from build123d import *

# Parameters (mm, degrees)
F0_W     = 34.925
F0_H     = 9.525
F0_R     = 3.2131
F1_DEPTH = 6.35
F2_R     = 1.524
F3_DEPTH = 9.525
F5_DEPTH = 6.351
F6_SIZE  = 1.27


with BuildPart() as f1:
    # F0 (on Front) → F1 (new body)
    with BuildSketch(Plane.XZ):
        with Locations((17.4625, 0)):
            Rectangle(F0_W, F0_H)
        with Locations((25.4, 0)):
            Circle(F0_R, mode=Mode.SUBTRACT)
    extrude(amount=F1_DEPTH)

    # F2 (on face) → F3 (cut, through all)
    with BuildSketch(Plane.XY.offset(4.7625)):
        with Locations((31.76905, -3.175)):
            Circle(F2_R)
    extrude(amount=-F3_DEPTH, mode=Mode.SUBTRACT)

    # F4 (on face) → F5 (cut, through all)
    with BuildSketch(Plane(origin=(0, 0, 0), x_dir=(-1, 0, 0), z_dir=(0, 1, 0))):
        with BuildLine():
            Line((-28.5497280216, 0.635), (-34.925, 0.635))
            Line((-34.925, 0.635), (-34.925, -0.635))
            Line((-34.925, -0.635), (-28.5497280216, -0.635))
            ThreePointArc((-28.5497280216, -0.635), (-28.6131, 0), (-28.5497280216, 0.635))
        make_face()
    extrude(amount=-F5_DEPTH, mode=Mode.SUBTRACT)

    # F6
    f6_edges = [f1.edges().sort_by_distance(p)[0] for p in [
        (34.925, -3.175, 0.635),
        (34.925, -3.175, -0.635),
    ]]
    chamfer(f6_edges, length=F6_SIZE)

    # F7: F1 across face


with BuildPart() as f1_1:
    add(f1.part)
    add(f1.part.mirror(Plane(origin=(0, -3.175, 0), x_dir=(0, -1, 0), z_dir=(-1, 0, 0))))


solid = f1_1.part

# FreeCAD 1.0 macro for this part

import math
import FreeCAD as App
import Part
import Sketcher
Q = App.Units.Quantity


def edges_at(feature, points):
    """Names of the edges that pass closest to the given points."""
    edges = feature.Shape.Edges
    near = lambda p: min(range(len(edges)), key=lambda i: edges[i].distToShape(Part.Vertex(*p))[0])
    return sorted({f"Edge{near(p) + 1}" for p in points})


def add_polygon(sketch, points):
    """Adds a closed chain of lines whose ends are joined by coincident constraints."""
    first, n = sketch.GeometryCount, len(points)
    for a, b in zip(points, points[1:] + points[:1]):
        sketch.addGeometry(Part.LineSegment(App.Vector(*a, 0), App.Vector(*b, 0)), False)
    for i in range(n):
        sketch.addConstraint(Sketcher.Constraint("Coincident", first + i, 2, first + (i + 1) % n, 1))

doc = App.newDocument("Part")
params = doc.addObject("Spreadsheet::Sheet", "Params")
for row, (alias, value) in enumerate([
    ("sketch1_diameter", "0.253 in"),
    ("sketch1_width", "1.375 in"),
    ("sketch1_height", "0.375 in"),
    ("pad1_length", "0.25 in"),
    ("sketch2_diameter", "0.12 in"),
    ("sketch3_height", "0.05 in"),
    ("chamfer_size", "0.05 in"),
], start=1):
    params.set(f"A{row}", alias)
    params.set(f"B{row}", "=" + value)
    params.setAlias(f"B{row}", alias)

body = doc.addObject("PartDesign::Body", "Body")

sketch1 = body.newObject("Sketcher::SketchObject", "Sketch")
sketch1.AttachmentSupport = (doc.getObject("XZ_Plane"), [""])
sketch1.MapMode = "FlatFace"
add_polygon(sketch1, [(0, 4.8), (0, -4.8), (34.9, -4.8), (34.9, 4.8)])
sketch1.addGeometry(Part.Circle(App.Vector(25.4, 0, 0), App.Vector(0, 0, 1), 3.2), False)
sketch1.addConstraint(Sketcher.Constraint("Vertical", 0))
sketch1.addConstraint(Sketcher.Constraint("Horizontal", 1))
sketch1.addConstraint(Sketcher.Constraint("Vertical", 2))
sketch1.addConstraint(Sketcher.Constraint("Horizontal", 3))
sketch1.addConstraint(Sketcher.Constraint("Symmetric", 0, 2, 3, 2, -1, 1))
sketch1.addConstraint(Sketcher.Constraint("PointOnObject", 4, 3, -1))
sketch1.addConstraint(Sketcher.Constraint("Diameter", 4, Q("0.253 in")))
sketch1.addConstraint(Sketcher.Constraint("DistanceX", -1, 1, 4, 3, Q("1 in")))
sketch1.addConstraint(Sketcher.Constraint("DistanceX", 1, 1, 1, 2, Q("1.375 in")))
sketch1.addConstraint(Sketcher.Constraint("DistanceY", 0, 2, 0, 1, Q("0.375 in")))
sketch1.setExpression("Constraints[10]", "Params.sketch1_diameter")
sketch1.setExpression("Constraints[12]", "Params.sketch1_width")
sketch1.setExpression("Constraints[13]", "Params.sketch1_height")
pad1 = body.newObject("PartDesign::Pad", "Pad")
pad1.Profile = sketch1
pad1.setExpression("Length", "Params.pad1_length")

sketch2 = body.newObject("Sketcher::SketchObject", "Sketch001")
sketch2.AttachmentSupport = (doc.getObject("XY_Plane"), [""])
sketch2.MapMode = "FlatFace"
sketch2.AttachmentOffset = App.Placement(App.Vector(0, 0, 0.1875 * 25.4), App.Rotation())
sketch2.addGeometry(Part.Circle(App.Vector(31.8, -3.2, 0), App.Vector(0, 0, 1), 1.5), False)
sketch2.addConstraint(Sketcher.Constraint("Diameter", 0, Q("0.12 in")))
sketch2.addConstraint(Sketcher.Constraint("DistanceY", 0, 3, -1, 1, Q("0.125 in")))
sketch2.addConstraint(Sketcher.Constraint("DistanceX", -1, 1, 0, 3, 31.76905))
sketch2.setExpression("Constraints[0]", "Params.sketch2_diameter")
pocket1 = body.newObject("PartDesign::Pocket", "Pocket")
pocket1.Profile = sketch2
pocket1.Type = "ThroughAll"

sketch3 = body.newObject("Sketcher::SketchObject", "Sketch002")
sketch3.AttachmentSupport = (doc.getObject("XZ_Plane"), [""])
sketch3.MapMode = "FlatFace"
sketch3.addGeometry(Part.LineSegment(App.Vector(28.5, 0.6, 0), App.Vector(34.9, 0.6, 0)), False)
sketch3.addGeometry(Part.LineSegment(App.Vector(34.9, 0.6, 0), App.Vector(34.9, -0.6, 0)), False)
sketch3.addGeometry(Part.LineSegment(App.Vector(34.9, -0.6, 0), App.Vector(28.5, -0.6, 0)), False)
sketch3.addGeometry(Part.ArcOfCircle(Part.Circle(App.Vector(25.4, 0, 0), App.Vector(0, 0, 1), 3.2), math.radians(-11), math.radians(11)), False)
sketch3.addConstraint(Sketcher.Constraint("Coincident", 0, 2, 1, 1))
sketch3.addConstraint(Sketcher.Constraint("Coincident", 1, 2, 2, 1))
sketch3.addConstraint(Sketcher.Constraint("Coincident", 2, 2, 3, 1))
sketch3.addConstraint(Sketcher.Constraint("Coincident", 3, 2, 0, 1))
sketch3.addConstraint(Sketcher.Constraint("Horizontal", 0))
sketch3.addConstraint(Sketcher.Constraint("Vertical", 1))
sketch3.addConstraint(Sketcher.Constraint("Horizontal", 2))
sketch3.addConstraint(Sketcher.Constraint("Symmetric", 2, 2, 3, 2, -1))
sketch3.addConstraint(Sketcher.Constraint("DistanceX", -1, 1, 3, 3, Q("1 in")))
sketch3.addConstraint(Sketcher.Constraint("DistanceY", 1, 2, 1, 1, Q("0.05 in")))
sketch3.addConstraint(Sketcher.Constraint("Radius", 3, Q("0.1265 in")))
sketch3.addConstraint(Sketcher.Constraint("DistanceX", -1, 1, 0, 2, Q("1.375 in")))
sketch3.setExpression("Constraints[9]", "Params.sketch3_height")
pocket2 = body.newObject("PartDesign::Pocket", "Pocket001")
pocket2.Profile = sketch3
pocket2.Type = "ThroughAll"
pocket2.Reversed = True
doc.recompute()

chamfer = body.newObject("PartDesign::Chamfer", "Chamfer")
chamfer.Base = (pocket2, edges_at(pocket2, [(34.925, -3.175, 0.635), (34.925, -3.175, -0.635)]))
chamfer.setExpression("Size", "Params.chamfer_size")
body2 = doc.addObject("PartDesign::Body", "Body001")
doc.recompute()

body2.BaseFeature = body
doc.recompute()

mirroring = doc.addObject("Part::Mirroring", "Mirroring")
mirroring.Source = body
mirroring.Base = App.Vector(0, -3.175, 0)
mirroring.Normal = App.Vector(-1, 0, 0)
body3 = doc.addObject("PartDesign::Body", "Body002")
body3.BaseFeature = mirroring
boolean = body2.newObject("PartDesign::Boolean", "Boolean")
boolean.Type = "Fuse"
boolean.addObjects([body3])
doc.recompute()
mirroring.Visibility = False

doc.recompute()
